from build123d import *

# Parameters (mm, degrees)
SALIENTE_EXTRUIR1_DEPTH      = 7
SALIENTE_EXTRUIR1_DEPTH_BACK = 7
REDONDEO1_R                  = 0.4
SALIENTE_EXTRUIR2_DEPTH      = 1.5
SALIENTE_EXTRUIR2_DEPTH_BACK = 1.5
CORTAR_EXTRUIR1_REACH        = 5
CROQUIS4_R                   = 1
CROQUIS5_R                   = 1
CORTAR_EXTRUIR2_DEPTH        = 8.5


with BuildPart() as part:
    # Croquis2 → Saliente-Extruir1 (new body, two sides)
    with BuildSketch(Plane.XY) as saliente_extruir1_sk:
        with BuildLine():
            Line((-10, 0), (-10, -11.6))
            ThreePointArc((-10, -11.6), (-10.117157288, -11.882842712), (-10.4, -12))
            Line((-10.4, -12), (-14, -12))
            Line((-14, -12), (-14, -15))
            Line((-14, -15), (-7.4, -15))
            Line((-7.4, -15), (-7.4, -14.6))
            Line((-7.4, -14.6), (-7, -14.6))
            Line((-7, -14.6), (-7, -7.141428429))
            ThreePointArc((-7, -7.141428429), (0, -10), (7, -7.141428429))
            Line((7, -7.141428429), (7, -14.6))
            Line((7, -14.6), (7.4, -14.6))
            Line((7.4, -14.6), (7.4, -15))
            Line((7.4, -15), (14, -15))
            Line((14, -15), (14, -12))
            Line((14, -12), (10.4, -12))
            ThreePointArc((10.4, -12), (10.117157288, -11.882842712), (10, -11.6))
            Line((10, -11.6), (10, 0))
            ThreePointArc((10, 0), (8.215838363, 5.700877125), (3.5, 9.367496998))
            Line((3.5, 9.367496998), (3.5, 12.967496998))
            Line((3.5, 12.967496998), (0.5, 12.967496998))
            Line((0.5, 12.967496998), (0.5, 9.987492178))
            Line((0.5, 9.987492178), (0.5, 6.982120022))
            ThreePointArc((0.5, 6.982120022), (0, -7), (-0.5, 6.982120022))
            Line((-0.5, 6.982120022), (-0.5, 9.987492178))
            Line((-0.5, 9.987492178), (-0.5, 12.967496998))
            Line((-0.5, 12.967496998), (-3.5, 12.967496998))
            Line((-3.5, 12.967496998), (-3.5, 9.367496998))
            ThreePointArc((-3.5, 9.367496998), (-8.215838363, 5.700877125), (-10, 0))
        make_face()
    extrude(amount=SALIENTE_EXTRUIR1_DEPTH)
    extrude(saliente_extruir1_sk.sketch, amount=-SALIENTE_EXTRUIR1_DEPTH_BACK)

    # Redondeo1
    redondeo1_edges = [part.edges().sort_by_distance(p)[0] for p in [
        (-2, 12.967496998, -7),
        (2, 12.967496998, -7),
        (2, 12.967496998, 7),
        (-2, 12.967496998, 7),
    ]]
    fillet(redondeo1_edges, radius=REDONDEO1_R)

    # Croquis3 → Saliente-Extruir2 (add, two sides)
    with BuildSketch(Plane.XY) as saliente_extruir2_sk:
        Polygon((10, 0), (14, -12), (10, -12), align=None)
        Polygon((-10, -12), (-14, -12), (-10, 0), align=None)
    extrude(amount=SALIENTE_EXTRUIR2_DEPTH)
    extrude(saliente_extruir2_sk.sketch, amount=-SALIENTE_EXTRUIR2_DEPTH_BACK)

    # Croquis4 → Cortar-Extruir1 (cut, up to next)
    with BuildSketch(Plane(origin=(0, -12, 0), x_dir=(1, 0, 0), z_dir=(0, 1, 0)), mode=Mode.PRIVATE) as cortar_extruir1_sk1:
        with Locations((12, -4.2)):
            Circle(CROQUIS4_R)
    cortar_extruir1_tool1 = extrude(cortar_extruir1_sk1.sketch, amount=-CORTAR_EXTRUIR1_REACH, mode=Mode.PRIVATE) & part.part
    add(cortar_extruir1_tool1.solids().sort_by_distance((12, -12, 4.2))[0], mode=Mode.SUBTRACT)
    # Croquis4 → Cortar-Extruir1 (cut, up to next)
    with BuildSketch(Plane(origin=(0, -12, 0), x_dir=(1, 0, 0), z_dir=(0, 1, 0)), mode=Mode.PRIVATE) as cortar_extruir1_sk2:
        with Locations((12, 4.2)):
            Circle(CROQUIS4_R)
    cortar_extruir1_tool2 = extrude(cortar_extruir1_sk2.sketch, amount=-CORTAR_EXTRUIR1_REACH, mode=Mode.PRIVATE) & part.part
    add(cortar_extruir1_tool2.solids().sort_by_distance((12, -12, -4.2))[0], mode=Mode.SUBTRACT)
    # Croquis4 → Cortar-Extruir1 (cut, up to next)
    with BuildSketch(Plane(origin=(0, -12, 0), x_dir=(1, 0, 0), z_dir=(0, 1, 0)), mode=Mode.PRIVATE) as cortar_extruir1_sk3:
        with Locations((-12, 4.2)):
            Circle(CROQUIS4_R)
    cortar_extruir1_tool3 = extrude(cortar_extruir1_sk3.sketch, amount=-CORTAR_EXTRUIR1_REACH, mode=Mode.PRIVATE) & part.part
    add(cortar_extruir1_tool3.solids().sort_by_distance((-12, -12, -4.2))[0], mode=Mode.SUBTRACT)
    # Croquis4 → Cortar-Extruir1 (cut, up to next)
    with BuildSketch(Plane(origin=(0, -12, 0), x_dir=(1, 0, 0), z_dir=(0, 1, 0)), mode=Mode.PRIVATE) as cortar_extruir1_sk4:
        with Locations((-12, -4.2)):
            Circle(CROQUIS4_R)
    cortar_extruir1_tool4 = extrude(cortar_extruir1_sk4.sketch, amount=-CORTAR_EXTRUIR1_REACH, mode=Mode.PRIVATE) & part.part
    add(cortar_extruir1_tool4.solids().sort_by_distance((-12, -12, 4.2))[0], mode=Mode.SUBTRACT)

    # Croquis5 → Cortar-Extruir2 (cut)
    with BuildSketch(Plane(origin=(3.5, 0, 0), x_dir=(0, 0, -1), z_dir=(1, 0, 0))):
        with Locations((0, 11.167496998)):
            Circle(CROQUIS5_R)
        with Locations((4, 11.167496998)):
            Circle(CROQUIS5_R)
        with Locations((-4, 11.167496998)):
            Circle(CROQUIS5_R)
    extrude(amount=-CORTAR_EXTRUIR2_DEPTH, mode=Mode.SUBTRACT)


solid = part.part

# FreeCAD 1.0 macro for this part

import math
import FreeCAD as App
import Part
import Sketcher

V = App.Vector


def edges_at(feature, points):
    """Names of the edges that pass closest to the given points."""
    edges = feature.Shape.Edges
    near = lambda p: min(range(len(edges)), key=lambda i: edges[i].distToShape(Part.Vertex(*p))[0])
    return sorted({f"Edge{near(p) + 1}" for p in points})


def add_polygon(sketch, points):
    """Adds a closed chain of lines whose ends are joined by coincident constraints."""
    first, n = sketch.GeometryCount, len(points)
    for a, b in zip(points, points[1:] + points[:1]):
        sketch.addGeometry(Part.LineSegment(App.Vector(*a, 0), App.Vector(*b, 0)), False)
    for i in range(n):
        sketch.addConstraint(Sketcher.Constraint("Coincident", first + i, 2, first + (i + 1) % n, 1))

doc = App.newDocument("Part")
body = doc.addObject("PartDesign::Body", "Body")

# Sketch on XY plane
sketch1 = body.newObject("Sketcher::SketchObject", "Sketch")
sketch1.AttachmentSupport = (doc.getObject("XY_Plane"), [""])
sketch1.MapMode = "FlatFace"
sketch1.addGeometry([
    Part.LineSegment(V(-10, 0, 0), V(-10, -11.6, 0)),  # 0
    Part.ArcOfCircle(Part.Circle(V(-10.4, -11.6, 0), V(0, 0, 1), 0.4), math.radians(-90), math.radians(0)),  # 1
    Part.LineSegment(V(-10.4, -12, 0), V(-14, -12, 0)),  # 2
    Part.LineSegment(V(-14, -12, 0), V(-14, -15, 0)),  # 3
    Part.LineSegment(V(-14, -15, 0), V(-7.4, -15, 0)),  # 4
    Part.LineSegment(V(-7.4, -15, 0), V(-7.4, -14.6, 0)),  # 5
    Part.LineSegment(V(-7.4, -14.6, 0), V(-7, -14.6, 0)),  # 6
    Part.LineSegment(V(-7, -14.6, 0), V(-7, -7.141428, 0)),  # 7
    Part.ArcOfCircle(Part.Circle(V(0, 0, 0), V(0, 0, 1), 10), math.radians(-134.427004), math.radians(-45.572996)),  # 8
    Part.LineSegment(V(7, -7.141428, 0), V(7, -14.6, 0)),  # 9
    Part.LineSegment(V(7, -14.6, 0), V(7.4, -14.6, 0)),  # 10
    Part.LineSegment(V(7.4, -14.6, 0), V(7.4, -15, 0)),  # 11
    Part.LineSegment(V(7.4, -15, 0), V(14, -15, 0)),  # 12
    Part.LineSegment(V(14, -15, 0), V(14, -12, 0)),  # 13
    Part.LineSegment(V(14, -12, 0), V(10.4, -12, 0)),  # 14
    Part.ArcOfCircle(Part.Circle(V(10.4, -11.6, 0), V(0, 0, 1), 0.4), math.radians(-180), math.radians(-90)),  # 15
    Part.LineSegment(V(10, -11.6, 0), V(10, 0, 0)),  # 16
    Part.ArcOfCircle(Part.Circle(V(0, 0, 0), V(0, 0, 1), 10), math.radians(0), math.radians(69.512685)),  # 17
    Part.LineSegment(V(3.5, 9.367497, 0), V(3.5, 12.967497, 0)),  # 18
    Part.LineSegment(V(3.5, 12.967497, 0), V(0.5, 12.967497, 0)),  # 19
    Part.LineSegment(V(0.5, 12.967497, 0), V(0.5, 6.98212, 0)),  # 20
    Part.ArcOfCircle(Part.Circle(V(0, 0, 0), V(0, 0, 1), 7), math.radians(94.096044), math.radians(445.903956)),  # 21
    Part.LineSegment(V(-0.5, 6.98212, 0), V(-0.5, 12.967497, 0)),  # 22
    Part.LineSegment(V(-0.5, 12.967497, 0), V(-3.5, 12.967497, 0)),  # 23
    Part.LineSegment(V(-3.5, 12.967497, 0), V(-3.5, 9.367497, 0)),  # 24
    Part.ArcOfCircle(Part.Circle(V(0, 0, 0), V(0, 0, 1), 10), math.radians(110.487315), math.radians(180)),  # 25
], False)
sketch1.addConstraint([
    Sketcher.Constraint("Tangent", 0, 2, 1, 2),
    Sketcher.Constraint("Tangent", 1, 1, 2, 1),
    Sketcher.Constraint("Coincident", 2, 2, 3, 1),
    Sketcher.Constraint("Coincident", 3, 2, 4, 1),
    Sketcher.Constraint("Coincident", 4, 2, 5, 1),
    Sketcher.Constraint("Coincident", 5, 2, 6, 1),
    Sketcher.Constraint("Coincident", 6, 2, 7, 1),
    Sketcher.Constraint("Coincident", 7, 2, 8, 1),
    Sketcher.Constraint("Coincident", 8, 2, 9, 1),
    Sketcher.Constraint("Coincident", 9, 2, 10, 1),
    Sketcher.Constraint("Coincident", 10, 2, 11, 1),
    Sketcher.Constraint("Coincident", 11, 2, 12, 1),
    Sketcher.Constraint("Coincident", 12, 2, 13, 1),
    Sketcher.Constraint("Coincident", 13, 2, 14, 1),
    Sketcher.Constraint("Tangent", 14, 2, 15, 2),
    Sketcher.Constraint("Tangent", 15, 1, 16, 1),
    Sketcher.Constraint("Tangent", 16, 2, 17, 1),
    Sketcher.Constraint("Coincident", 17, 2, 18, 1),
    Sketcher.Constraint("Coincident", 18, 2, 19, 1),
    Sketcher.Constraint("Coincident", 19, 2, 20, 1),
    Sketcher.Constraint("Coincident", 20, 2, 21, 2),
    Sketcher.Constraint("Coincident", 21, 1, 22, 1),
    Sketcher.Constraint("Coincident", 22, 2, 23, 1),
    Sketcher.Constraint("Coincident", 23, 2, 24, 1),
    Sketcher.Constraint("Coincident", 24, 2, 25, 1),
    Sketcher.Constraint("Tangent", 25, 2, 0, 1),
    Sketcher.Constraint("Vertical", 0),
    Sketcher.Constraint("Horizontal", 2),
    Sketcher.Constraint("Vertical", 3),
    Sketcher.Constraint("Horizontal", 4),
    Sketcher.Constraint("Vertical", 5),
    Sketcher.Constraint("Horizontal", 6),
    Sketcher.Constraint("Vertical", 7),
    Sketcher.Constraint("Vertical", 9),
    Sketcher.Constraint("Horizontal", 10),
    Sketcher.Constraint("Vertical", 11),
    Sketcher.Constraint("Horizontal", 12),
    Sketcher.Constraint("Vertical", 13),
    Sketcher.Constraint("Horizontal", 14),
    Sketcher.Constraint("Vertical", 16),
    Sketcher.Constraint("Vertical", 18),
    Sketcher.Constraint("Horizontal", 19),
    Sketcher.Constraint("Vertical", 20),
    Sketcher.Constraint("Vertical", 22),
    Sketcher.Constraint("Horizontal", 23),
    Sketcher.Constraint("Vertical", 24),
    Sketcher.Constraint("Coincident", 8, 3, -1, 1),
    Sketcher.Constraint("Coincident", 17, 3, -1, 1),
    Sketcher.Constraint("Coincident", 21, 3, -1, 1),
    Sketcher.Constraint("Coincident", 25, 3, -1, 1),
    Sketcher.Constraint("Equal", 1, 15),
    Sketcher.Constraint("Equal", 8, 17),
    Sketcher.Constraint("Equal", 17, 25),
    Sketcher.Constraint("Symmetric", 6, 2, 9, 2, -2),
    Sketcher.Constraint("Symmetric", 4, 2, 11, 2, -2),
    Sketcher.Constraint("Symmetric", 2, 2, 13, 2, -2),
    Sketcher.Constraint("Symmetric", 19, 2, 22, 2, -2),
    Sketcher.Constraint("Horizontal", 17, 2, 24, 2),
    Sketcher.Constraint("Equal", 23, 3),
    Sketcher.Constraint("Equal", 10, 5),
    Sketcher.Constraint("Equal", 14, 18),
    Sketcher.Constraint("Radius", 8, 10.0),
    Sketcher.Constraint("Radius", 21, 7.0),
    Sketcher.Constraint("Radius", 1, 0.4),
    Sketcher.Constraint("DistanceX", 19, 2, 19, 1, 3.0),
    Sketcher.Constraint("DistanceX", 2, 2, 2, 1, 3.6),
    Sketcher.Constraint("DistanceX", 4, 1, 4, 2, 6.6),
    Sketcher.Constraint("DistanceX", 6, 1, 6, 2, 0.4),
    Sketcher.Constraint("DistanceY", 0, 2, 0, 1, 11.6),
    Sketcher.Constraint("DistanceX", 21, 1, 20, 2, 1.0),
])
pad1 = body.newObject("PartDesign::Pad", "Pad")
pad1.Profile = sketch1
pad1.Type = "TwoLengths"
pad1.Length = 7
pad1.Length2 = 7
doc.recompute()

fillet = body.newObject("PartDesign::Fillet", "Fillet")
fillet.Base = (pad1, edges_at(pad1, [
    (-2, 12.967, -7),
    (2, 12.967, -7),
    (2, 12.967, 7),
    (-2, 12.967, 7),
]))
fillet.Radius = 0.4

# Sketch on XY plane
sketch2 = body.newObject("Sketcher::SketchObject", "Sketch001")
sketch2.AttachmentSupport = (doc.getObject("XY_Plane"), [""])
sketch2.MapMode = "FlatFace"
add_polygon(sketch2, [(14, -12), (10, 0), (10, -12)])  # lines 0-2
add_polygon(sketch2, [(-14, -12), (-10, -12), (-10, 0)])  # lines 3-5
sketch2.addConstraint([
    Sketcher.Constraint("Vertical", 1),
    Sketcher.Constraint("Horizontal", 2),
    Sketcher.Constraint("Horizontal", 3),
    Sketcher.Constraint("Vertical", 4),
    Sketcher.Constraint("Symmetric", 0, 2, 4, 2, -1, 1),
    Sketcher.Constraint("Symmetric", 2, 2, 5, 2, -2),
    Sketcher.Constraint("PointOnObject", 0, 2, -1),
    Sketcher.Constraint("DistanceX", 2, 1, 2, 2, 4.0),
    Sketcher.Constraint("DistanceY", 1, 2, 1, 1, 12.0),
    Sketcher.Constraint("DistanceX", -1, 1, 0, 2, 10.0),
])
pad2 = body.newObject("PartDesign::Pad", "Pad001")
pad2.Profile = sketch2
pad2.Type = "TwoLengths"
pad2.Length = 1.5
pad2.Length2 = 1.5

# Sketch on XZ plane
sketch3 = body.newObject("Sketcher::SketchObject", "Sketch002")
sketch3.AttachmentSupport = (doc.getObject("XZ_Plane"), [""])
sketch3.MapMode = "FlatFace"
sketch3.AttachmentOffset = App.Placement(V(0, 0, 12), App.Rotation())
sketch3.addGeometry(Part.Circle(V(12, 4.2, 0), V(0, 0, 1), 1), False)
sketch3.addConstraint([
    Sketcher.Constraint("Diameter", 0, 2.0),
    Sketcher.Constraint("DistanceX", -1, 1, 0, 3, 12.0),
    Sketcher.Constraint("DistanceY", -1, 1, 0, 3, 4.2),
])
pocket1 = body.newObject("PartDesign::Pocket", "Pocket")
pocket1.Profile = sketch3
pocket1.Type = "UpToFirst"
pocket1.Reversed = True

# Sketch on XZ plane
sketch4 = body.newObject("Sketcher::SketchObject", "Sketch003")
sketch4.AttachmentSupport = (doc.getObject("XZ_Plane"), [""])
sketch4.MapMode = "FlatFace"
sketch4.AttachmentOffset = App.Placement(V(0, 0, 12), App.Rotation())
sketch4.addGeometry(Part.Circle(V(12, -4.2, 0), V(0, 0, 1), 1), False)
sketch4.addConstraint([
    Sketcher.Constraint("Diameter", 0, 2.0),
    Sketcher.Constraint("DistanceX", -1, 1, 0, 3, 12.0),
    Sketcher.Constraint("DistanceY", 0, 3, -1, 1, 4.2),
])
pocket2 = body.newObject("PartDesign::Pocket", "Pocket001")
pocket2.Profile = sketch4
pocket2.Type = "UpToFirst"
pocket2.Reversed = True

# Sketch on XZ plane
sketch5 = body.newObject("Sketcher::SketchObject", "Sketch004")
sketch5.AttachmentSupport = (doc.getObject("XZ_Plane"), [""])
sketch5.MapMode = "FlatFace"
sketch5.AttachmentOffset = App.Placement(V(0, 0, 12), App.Rotation())
sketch5.addGeometry(Part.Circle(V(-12, -4.2, 0), V(0, 0, 1), 1), False)
sketch5.addConstraint([
    Sketcher.Constraint("Diameter", 0, 2.0),
    Sketcher.Constraint("DistanceX", 0, 3, -1, 1, 12.0),
    Sketcher.Constraint("DistanceY", 0, 3, -1, 1, 4.2),
])
pocket3 = body.newObject("PartDesign::Pocket", "Pocket002")
pocket3.Profile = sketch5
pocket3.Type = "UpToFirst"
pocket3.Reversed = True

# Sketch on XZ plane
sketch6 = body.newObject("Sketcher::SketchObject", "Sketch005")
sketch6.AttachmentSupport = (doc.getObject("XZ_Plane"), [""])
sketch6.MapMode = "FlatFace"
sketch6.AttachmentOffset = App.Placement(V(0, 0, 12), App.Rotation())
sketch6.addGeometry(Part.Circle(V(-12, 4.2, 0), V(0, 0, 1), 1), False)
sketch6.addConstraint([
    Sketcher.Constraint("Diameter", 0, 2.0),
    Sketcher.Constraint("DistanceX", 0, 3, -1, 1, 12.0),
    Sketcher.Constraint("DistanceY", -1, 1, 0, 3, 4.2),
])
pocket4 = body.newObject("PartDesign::Pocket", "Pocket003")
pocket4.Profile = sketch6
pocket4.Type = "UpToFirst"
pocket4.Reversed = True

# Sketch on YZ plane
sketch7 = body.newObject("Sketcher::SketchObject", "Sketch006")
sketch7.AttachmentSupport = (doc.getObject("YZ_Plane"), [""])
sketch7.MapMode = "FlatFace"
sketch7.AttachmentOffset = App.Placement(V(0, 0, 3.5), App.Rotation())
sketch7.addGeometry([
    Part.Circle(V(11.167497, 0, 0), V(0, 0, 1), 1),
    Part.Circle(V(11.167497, -4, 0), V(0, 0, 1), 1),
    Part.Circle(V(11.167497, 4, 0), V(0, 0, 1), 1),
], False)
sketch7.addConstraint([
    Sketcher.Constraint("Equal", 0, 1),
    Sketcher.Constraint("Equal", 1, 2),
    Sketcher.Constraint("Symmetric", 1, 3, 2, 3, -1),
    Sketcher.Constraint("PointOnObject", 0, 3, -1),
    Sketcher.Constraint("Vertical", 0, 3, 1, 3),
    Sketcher.Constraint("Diameter", 0, 2.0),
    Sketcher.Constraint("DistanceY", 1, 3, -1, 1, 4.0),
    Sketcher.Constraint("DistanceX", -1, 1, 0, 3, 11.167497),
])
pocket5 = body.newObject("PartDesign::Pocket", "Pocket004")
pocket5.Profile = sketch7
pocket5.Length = 8.5

doc.recompute()
